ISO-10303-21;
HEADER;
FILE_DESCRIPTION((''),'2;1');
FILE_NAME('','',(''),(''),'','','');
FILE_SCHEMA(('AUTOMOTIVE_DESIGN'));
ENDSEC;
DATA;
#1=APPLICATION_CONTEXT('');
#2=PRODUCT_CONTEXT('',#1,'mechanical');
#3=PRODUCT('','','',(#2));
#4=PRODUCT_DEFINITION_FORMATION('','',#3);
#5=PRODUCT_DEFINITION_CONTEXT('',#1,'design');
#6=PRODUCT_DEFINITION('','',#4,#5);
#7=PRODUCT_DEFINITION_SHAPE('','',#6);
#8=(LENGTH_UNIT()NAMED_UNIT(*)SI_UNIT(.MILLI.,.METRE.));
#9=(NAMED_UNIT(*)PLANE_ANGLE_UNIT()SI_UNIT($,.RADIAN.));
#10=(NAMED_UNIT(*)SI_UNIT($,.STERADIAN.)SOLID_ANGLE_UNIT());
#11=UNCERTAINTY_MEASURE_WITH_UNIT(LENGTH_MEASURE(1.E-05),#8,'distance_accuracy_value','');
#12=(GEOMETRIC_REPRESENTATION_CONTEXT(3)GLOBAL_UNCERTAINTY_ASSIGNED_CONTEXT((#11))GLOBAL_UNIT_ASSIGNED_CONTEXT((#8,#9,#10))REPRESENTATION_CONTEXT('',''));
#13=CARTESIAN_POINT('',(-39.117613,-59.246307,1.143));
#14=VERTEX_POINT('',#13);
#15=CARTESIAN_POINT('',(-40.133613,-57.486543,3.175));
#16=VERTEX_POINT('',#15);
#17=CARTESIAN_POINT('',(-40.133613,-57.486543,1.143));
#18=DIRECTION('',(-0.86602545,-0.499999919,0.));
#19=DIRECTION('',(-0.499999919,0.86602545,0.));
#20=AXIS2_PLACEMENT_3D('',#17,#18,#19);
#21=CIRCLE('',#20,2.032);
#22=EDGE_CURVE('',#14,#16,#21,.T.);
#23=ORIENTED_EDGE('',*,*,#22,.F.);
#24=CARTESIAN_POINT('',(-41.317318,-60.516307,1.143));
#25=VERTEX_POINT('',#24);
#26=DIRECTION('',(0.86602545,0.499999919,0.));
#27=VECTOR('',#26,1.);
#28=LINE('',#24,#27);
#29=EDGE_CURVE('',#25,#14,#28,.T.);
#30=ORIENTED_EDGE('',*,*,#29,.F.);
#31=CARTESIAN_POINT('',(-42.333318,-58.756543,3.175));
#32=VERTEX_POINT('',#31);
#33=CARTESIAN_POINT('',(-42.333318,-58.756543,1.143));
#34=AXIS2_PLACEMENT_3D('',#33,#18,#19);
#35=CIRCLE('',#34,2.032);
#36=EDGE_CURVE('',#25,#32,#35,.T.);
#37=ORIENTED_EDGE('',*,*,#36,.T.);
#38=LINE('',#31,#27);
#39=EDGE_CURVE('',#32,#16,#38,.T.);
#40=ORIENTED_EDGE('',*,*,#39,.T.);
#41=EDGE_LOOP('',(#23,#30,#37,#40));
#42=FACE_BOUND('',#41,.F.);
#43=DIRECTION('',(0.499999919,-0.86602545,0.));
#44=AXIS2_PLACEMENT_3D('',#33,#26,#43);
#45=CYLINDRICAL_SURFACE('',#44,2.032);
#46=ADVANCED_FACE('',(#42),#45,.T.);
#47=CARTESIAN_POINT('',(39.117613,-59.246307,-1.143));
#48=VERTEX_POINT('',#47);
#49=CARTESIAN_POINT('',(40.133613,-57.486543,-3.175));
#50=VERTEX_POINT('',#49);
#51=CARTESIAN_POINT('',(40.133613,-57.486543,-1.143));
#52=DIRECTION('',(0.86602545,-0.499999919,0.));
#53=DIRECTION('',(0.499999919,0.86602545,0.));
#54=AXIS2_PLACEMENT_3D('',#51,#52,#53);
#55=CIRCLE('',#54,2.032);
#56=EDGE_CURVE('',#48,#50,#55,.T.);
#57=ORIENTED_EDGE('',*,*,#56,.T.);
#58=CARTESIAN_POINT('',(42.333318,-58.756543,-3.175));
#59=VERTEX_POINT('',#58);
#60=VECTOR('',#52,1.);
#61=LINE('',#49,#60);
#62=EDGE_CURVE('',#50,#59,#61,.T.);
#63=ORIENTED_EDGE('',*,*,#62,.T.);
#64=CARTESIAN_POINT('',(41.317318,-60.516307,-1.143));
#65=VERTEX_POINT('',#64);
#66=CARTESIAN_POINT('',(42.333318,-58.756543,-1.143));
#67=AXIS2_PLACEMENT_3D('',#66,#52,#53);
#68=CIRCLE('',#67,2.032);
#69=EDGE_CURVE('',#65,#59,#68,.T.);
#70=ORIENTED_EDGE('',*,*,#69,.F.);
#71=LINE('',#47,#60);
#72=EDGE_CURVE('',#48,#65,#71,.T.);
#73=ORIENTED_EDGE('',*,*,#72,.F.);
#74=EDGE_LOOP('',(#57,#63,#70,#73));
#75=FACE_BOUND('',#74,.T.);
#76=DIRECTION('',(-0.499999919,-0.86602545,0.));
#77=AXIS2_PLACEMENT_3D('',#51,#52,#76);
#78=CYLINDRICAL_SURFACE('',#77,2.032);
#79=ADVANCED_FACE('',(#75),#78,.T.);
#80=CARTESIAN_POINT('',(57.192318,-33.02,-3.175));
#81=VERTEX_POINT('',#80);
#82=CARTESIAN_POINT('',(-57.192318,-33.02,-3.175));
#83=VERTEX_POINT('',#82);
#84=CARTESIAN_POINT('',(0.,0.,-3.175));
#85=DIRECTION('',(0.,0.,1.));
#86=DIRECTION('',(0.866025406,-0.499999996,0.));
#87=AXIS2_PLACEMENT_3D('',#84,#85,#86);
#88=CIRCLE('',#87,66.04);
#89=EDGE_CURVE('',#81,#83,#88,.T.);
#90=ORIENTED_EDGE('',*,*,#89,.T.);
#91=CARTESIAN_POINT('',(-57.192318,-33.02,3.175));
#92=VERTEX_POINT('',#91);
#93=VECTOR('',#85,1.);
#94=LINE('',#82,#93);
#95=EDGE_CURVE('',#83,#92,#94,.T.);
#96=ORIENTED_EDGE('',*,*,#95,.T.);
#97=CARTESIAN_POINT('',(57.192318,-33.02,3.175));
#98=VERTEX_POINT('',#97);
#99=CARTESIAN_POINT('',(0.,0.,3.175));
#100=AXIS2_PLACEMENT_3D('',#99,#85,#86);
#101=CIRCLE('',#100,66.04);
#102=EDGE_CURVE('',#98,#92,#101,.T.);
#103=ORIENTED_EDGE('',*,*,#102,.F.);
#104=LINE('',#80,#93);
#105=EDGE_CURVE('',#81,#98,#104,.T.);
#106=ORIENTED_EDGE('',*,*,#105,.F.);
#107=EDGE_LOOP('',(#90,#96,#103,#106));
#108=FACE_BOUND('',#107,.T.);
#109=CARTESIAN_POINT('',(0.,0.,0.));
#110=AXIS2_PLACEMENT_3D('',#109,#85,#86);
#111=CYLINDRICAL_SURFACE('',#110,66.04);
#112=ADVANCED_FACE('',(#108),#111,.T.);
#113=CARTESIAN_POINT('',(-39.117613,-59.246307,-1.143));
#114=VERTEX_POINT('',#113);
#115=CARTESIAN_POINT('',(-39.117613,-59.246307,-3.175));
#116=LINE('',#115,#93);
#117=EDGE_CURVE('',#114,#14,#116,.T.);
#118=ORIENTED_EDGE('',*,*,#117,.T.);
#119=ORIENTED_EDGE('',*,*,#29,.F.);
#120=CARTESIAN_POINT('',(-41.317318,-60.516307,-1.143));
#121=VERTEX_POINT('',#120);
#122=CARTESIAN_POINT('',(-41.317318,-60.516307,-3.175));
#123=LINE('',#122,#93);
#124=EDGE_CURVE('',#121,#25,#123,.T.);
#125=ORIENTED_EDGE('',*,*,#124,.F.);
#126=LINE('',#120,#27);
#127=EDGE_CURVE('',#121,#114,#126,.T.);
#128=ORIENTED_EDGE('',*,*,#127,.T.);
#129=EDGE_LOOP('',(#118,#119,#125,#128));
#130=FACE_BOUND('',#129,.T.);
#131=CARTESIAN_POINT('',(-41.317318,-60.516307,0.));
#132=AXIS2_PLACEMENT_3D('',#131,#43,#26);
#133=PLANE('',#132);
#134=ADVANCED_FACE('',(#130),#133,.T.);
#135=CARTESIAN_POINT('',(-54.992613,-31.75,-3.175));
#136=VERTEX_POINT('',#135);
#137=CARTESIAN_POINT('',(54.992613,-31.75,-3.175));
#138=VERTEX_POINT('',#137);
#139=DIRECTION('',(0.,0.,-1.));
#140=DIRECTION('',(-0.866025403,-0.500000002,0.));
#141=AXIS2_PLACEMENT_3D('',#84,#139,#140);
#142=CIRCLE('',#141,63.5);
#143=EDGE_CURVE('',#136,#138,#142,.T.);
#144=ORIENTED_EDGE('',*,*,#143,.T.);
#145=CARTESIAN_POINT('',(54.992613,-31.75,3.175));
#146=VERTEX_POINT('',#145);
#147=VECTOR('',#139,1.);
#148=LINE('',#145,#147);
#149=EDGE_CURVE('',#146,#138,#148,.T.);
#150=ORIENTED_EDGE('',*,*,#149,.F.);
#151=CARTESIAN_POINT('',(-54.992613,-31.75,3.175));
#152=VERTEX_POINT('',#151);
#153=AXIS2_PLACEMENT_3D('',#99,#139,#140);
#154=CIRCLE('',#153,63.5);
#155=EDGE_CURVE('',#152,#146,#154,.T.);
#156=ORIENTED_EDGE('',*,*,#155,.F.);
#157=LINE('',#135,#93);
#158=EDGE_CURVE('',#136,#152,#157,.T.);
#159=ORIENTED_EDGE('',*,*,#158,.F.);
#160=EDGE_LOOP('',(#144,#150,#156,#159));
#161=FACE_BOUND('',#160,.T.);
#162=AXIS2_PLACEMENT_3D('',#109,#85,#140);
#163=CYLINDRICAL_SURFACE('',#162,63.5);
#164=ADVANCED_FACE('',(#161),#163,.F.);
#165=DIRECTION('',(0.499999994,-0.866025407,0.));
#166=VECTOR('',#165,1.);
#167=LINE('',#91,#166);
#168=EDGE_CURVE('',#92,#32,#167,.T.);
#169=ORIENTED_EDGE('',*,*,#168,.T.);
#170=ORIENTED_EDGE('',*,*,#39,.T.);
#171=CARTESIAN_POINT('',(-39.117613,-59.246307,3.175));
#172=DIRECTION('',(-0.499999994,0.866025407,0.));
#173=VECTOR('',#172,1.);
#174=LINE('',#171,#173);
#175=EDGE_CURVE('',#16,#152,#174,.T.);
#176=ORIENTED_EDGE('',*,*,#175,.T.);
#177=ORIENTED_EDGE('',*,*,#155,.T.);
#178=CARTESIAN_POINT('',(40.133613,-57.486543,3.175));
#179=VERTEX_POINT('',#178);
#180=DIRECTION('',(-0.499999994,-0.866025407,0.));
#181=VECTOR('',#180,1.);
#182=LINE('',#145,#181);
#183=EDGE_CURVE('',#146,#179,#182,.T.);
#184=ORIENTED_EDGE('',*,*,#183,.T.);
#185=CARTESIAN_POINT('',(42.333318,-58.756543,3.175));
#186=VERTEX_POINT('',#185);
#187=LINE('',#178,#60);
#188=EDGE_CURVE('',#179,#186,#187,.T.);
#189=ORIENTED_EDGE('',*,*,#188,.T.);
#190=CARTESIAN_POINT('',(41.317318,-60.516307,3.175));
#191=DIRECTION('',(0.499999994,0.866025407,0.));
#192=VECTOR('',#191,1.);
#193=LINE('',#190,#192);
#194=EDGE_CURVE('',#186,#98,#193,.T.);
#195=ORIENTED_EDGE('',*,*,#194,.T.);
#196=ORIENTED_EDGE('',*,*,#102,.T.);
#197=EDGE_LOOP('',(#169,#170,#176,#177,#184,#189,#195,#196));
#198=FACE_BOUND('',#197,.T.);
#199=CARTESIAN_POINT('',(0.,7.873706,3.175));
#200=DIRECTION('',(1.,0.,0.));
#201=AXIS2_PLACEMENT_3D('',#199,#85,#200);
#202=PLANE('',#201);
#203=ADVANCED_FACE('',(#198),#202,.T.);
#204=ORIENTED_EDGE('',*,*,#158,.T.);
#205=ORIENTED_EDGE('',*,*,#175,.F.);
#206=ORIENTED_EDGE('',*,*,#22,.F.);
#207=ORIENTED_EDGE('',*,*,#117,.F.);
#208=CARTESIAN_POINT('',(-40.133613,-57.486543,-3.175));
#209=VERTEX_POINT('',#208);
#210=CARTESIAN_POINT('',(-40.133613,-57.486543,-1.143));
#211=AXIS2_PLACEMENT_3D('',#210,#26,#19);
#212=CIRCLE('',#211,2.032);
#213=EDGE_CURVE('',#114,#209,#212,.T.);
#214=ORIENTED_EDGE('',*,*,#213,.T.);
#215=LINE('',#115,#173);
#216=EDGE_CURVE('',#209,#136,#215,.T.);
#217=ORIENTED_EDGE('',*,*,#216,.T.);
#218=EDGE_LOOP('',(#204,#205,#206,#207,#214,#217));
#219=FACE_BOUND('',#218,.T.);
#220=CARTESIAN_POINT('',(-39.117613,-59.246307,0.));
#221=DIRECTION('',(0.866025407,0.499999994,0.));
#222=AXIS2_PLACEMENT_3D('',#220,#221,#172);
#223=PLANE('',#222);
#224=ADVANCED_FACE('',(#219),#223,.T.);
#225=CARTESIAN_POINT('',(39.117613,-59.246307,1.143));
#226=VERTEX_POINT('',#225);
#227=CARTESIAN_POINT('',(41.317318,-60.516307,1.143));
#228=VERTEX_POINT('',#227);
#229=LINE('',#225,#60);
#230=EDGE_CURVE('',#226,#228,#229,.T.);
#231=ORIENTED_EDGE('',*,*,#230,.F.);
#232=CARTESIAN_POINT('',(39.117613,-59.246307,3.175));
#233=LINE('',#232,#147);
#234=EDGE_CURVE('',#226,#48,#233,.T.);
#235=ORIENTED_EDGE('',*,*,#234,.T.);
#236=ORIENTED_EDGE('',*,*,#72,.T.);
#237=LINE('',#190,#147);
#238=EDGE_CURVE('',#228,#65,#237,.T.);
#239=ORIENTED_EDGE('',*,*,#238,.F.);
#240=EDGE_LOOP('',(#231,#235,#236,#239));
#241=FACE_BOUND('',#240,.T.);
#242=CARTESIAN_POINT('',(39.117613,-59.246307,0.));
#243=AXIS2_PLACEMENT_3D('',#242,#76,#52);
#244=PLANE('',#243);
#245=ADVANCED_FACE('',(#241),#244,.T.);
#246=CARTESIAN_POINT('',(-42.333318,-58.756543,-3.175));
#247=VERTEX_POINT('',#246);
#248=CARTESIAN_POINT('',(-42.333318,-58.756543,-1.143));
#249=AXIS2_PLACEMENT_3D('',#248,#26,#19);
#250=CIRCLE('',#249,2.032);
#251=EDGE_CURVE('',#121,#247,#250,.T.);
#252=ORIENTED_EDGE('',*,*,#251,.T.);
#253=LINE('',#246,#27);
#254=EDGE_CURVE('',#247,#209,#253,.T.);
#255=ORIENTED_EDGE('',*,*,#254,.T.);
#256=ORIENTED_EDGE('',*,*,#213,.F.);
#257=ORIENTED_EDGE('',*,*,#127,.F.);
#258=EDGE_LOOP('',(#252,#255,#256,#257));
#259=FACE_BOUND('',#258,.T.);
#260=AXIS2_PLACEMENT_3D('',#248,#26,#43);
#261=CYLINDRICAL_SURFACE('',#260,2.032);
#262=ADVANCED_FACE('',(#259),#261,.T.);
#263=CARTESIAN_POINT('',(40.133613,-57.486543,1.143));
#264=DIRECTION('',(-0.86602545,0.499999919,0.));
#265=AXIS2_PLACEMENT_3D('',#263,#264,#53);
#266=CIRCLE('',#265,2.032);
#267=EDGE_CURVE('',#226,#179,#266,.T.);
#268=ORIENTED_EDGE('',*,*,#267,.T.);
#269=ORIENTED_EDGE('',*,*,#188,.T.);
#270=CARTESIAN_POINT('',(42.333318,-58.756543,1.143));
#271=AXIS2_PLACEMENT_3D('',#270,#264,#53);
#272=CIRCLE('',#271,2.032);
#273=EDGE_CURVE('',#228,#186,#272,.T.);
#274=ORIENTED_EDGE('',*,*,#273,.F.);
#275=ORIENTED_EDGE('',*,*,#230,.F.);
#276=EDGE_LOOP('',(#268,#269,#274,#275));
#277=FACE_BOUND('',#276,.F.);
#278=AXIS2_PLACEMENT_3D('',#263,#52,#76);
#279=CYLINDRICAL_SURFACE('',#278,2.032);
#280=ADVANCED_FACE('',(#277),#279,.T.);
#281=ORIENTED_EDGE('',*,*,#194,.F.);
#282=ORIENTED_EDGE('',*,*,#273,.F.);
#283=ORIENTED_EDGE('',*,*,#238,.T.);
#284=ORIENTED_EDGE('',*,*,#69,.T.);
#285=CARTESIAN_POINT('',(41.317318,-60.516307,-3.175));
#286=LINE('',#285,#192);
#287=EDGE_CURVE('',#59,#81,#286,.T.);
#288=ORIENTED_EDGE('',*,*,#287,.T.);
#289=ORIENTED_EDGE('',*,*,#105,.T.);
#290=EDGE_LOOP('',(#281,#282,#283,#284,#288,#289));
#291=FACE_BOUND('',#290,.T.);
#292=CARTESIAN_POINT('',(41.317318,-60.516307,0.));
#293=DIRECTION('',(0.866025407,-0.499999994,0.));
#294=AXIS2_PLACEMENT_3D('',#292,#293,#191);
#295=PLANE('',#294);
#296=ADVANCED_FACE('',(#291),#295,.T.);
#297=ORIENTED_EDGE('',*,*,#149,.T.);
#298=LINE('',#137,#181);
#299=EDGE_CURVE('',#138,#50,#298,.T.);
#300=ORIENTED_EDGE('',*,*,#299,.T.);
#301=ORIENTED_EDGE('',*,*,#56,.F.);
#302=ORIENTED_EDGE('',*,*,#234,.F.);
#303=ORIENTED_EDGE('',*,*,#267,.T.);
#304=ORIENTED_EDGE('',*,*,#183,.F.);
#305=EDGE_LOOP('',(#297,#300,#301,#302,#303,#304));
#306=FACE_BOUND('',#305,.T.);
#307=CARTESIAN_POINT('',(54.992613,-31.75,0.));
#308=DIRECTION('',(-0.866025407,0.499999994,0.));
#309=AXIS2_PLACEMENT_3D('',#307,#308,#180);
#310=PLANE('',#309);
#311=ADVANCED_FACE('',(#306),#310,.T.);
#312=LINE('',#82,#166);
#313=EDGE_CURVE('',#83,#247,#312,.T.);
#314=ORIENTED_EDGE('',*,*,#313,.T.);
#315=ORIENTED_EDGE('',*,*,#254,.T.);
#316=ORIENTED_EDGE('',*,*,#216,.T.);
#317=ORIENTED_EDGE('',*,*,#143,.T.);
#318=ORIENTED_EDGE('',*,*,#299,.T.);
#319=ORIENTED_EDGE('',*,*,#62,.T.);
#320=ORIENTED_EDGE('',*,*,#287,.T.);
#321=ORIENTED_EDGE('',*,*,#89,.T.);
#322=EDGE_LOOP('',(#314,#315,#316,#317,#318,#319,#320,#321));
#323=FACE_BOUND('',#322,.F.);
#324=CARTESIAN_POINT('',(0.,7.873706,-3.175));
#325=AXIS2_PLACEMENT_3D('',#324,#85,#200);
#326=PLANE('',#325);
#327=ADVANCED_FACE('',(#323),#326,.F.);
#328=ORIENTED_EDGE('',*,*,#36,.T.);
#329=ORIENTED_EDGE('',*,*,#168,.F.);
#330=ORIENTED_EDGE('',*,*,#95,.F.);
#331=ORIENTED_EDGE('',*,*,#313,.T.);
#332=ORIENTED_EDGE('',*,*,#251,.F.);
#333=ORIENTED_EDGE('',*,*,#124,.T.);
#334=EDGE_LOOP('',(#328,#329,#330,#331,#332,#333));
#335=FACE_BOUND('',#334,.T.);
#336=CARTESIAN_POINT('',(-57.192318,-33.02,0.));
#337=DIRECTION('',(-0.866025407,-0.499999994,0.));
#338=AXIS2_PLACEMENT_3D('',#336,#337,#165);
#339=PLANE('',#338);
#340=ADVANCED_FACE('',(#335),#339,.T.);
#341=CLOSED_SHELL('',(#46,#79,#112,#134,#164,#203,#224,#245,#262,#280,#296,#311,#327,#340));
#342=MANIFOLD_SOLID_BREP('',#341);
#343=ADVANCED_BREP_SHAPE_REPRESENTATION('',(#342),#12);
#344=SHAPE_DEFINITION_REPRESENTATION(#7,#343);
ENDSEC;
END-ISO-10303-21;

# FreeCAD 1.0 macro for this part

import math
import FreeCAD as App
import Part
import Sketcher
from FreeCAD import Vector
Q = App.Units.Quantity


def edges_at(feature, points):
    """Names of the edges that pass closest to the given points."""
    edges = feature.Shape.Edges
    near = lambda p: min(range(len(edges)), key=lambda i: edges[i].distToShape(Part.Vertex(*p))[0])
    return sorted({f"Edge{near(p) + 1}" for p in points})

doc = App.newDocument("Part")
body = doc.addObject("PartDesign::Body", "Body")

# Sketch on XY plane
sketch1 = doc.addObject("Sketcher::SketchObject", "Sketch")
body.addObject(sketch1)
sketch1.AttachmentSupport = (doc.XY_Plane, [""])
sketch1.MapMode = "FlatFace"
sketch1.addGeometry([
    Part.LineSegment(Vector(41.3, -60.5, 0), Vector(57.2, -33, 0)),  # 0
    Part.ArcOfCircle(Part.Circle(Vector(0, 0, 0), Vector(0, 0, 1), 66), math.radians(-30), math.radians(210)),  # 1
    Part.LineSegment(Vector(-57.2, -33, 0), Vector(-41.3, -60.5, 0)),  # 2
    Part.LineSegment(Vector(-41.3, -60.5, 0), Vector(-39.1, -59.2, 0)),  # 3
    Part.LineSegment(Vector(-39.1, -59.2, 0), Vector(-55, -31.8, 0)),  # 4
    Part.ArcOfCircle(Part.Circle(Vector(0, 0, 0), Vector(0, 0, 1), 63.5), math.radians(-30), math.radians(210)),  # 5
    Part.LineSegment(Vector(55, -31.8, 0), Vector(39.1, -59.2, 0)),  # 6
    Part.LineSegment(Vector(39.1, -59.2, 0), Vector(41.3, -60.5, 0)),  # 7
], False)
sketch1.addConstraint([
    Sketcher.Constraint("Tangent", 0, 2, 1, 1),
    Sketcher.Constraint("Tangent", 1, 2, 2, 1),
    Sketcher.Constraint("Coincident", 2, 2, 3, 1),
    Sketcher.Constraint("Coincident", 3, 2, 4, 1),
    Sketcher.Constraint("Tangent", 4, 2, 5, 2),
    Sketcher.Constraint("Tangent", 5, 1, 6, 1),
    Sketcher.Constraint("Coincident", 6, 2, 7, 1),
    Sketcher.Constraint("Coincident", 7, 2, 0, 1),
    Sketcher.Constraint("Coincident", 1, 3, -1, 1),
    Sketcher.Constraint("Coincident", 5, 3, -1, 1),
    Sketcher.Constraint("Symmetric", 3, 2, 6, 2, -2),
    Sketcher.Constraint("Symmetric", 2, 2, 7, 2, -2),
    Sketcher.Constraint("Perpendicular", 2, 3),
    Sketcher.Constraint("Perpendicular", 3, 4),
    Sketcher.Constraint("Radius", 1, Q("2.6 in")),
    Sketcher.Constraint("Radius", 5, Q("2.5 in")),
    Sketcher.Constraint("Angle", 0, Q("60 deg")),
    Sketcher.Constraint("Distance", 0, Q("1.25 in")),
])
pad1 = doc.addObject("PartDesign::Pad", "Pad")
body.addObject(pad1)
pad1.Profile = sketch1
pad1.Length = Q("0.25 in")
pad1.Midplane = True
doc.recompute()

fillet = doc.addObject("PartDesign::Fillet", "Fillet")
body.addObject(fillet)
fillet.Base = (pad1, edges_at(pad1, [
    (40.217, -59.881, -3.175),
    (40.217, -59.881, 3.175),
    (-40.217, -59.881, 3.175),
    (-40.217, -59.881, -3.175),
]))
fillet.Radius = Q("0.08 in")

doc.recompute()
